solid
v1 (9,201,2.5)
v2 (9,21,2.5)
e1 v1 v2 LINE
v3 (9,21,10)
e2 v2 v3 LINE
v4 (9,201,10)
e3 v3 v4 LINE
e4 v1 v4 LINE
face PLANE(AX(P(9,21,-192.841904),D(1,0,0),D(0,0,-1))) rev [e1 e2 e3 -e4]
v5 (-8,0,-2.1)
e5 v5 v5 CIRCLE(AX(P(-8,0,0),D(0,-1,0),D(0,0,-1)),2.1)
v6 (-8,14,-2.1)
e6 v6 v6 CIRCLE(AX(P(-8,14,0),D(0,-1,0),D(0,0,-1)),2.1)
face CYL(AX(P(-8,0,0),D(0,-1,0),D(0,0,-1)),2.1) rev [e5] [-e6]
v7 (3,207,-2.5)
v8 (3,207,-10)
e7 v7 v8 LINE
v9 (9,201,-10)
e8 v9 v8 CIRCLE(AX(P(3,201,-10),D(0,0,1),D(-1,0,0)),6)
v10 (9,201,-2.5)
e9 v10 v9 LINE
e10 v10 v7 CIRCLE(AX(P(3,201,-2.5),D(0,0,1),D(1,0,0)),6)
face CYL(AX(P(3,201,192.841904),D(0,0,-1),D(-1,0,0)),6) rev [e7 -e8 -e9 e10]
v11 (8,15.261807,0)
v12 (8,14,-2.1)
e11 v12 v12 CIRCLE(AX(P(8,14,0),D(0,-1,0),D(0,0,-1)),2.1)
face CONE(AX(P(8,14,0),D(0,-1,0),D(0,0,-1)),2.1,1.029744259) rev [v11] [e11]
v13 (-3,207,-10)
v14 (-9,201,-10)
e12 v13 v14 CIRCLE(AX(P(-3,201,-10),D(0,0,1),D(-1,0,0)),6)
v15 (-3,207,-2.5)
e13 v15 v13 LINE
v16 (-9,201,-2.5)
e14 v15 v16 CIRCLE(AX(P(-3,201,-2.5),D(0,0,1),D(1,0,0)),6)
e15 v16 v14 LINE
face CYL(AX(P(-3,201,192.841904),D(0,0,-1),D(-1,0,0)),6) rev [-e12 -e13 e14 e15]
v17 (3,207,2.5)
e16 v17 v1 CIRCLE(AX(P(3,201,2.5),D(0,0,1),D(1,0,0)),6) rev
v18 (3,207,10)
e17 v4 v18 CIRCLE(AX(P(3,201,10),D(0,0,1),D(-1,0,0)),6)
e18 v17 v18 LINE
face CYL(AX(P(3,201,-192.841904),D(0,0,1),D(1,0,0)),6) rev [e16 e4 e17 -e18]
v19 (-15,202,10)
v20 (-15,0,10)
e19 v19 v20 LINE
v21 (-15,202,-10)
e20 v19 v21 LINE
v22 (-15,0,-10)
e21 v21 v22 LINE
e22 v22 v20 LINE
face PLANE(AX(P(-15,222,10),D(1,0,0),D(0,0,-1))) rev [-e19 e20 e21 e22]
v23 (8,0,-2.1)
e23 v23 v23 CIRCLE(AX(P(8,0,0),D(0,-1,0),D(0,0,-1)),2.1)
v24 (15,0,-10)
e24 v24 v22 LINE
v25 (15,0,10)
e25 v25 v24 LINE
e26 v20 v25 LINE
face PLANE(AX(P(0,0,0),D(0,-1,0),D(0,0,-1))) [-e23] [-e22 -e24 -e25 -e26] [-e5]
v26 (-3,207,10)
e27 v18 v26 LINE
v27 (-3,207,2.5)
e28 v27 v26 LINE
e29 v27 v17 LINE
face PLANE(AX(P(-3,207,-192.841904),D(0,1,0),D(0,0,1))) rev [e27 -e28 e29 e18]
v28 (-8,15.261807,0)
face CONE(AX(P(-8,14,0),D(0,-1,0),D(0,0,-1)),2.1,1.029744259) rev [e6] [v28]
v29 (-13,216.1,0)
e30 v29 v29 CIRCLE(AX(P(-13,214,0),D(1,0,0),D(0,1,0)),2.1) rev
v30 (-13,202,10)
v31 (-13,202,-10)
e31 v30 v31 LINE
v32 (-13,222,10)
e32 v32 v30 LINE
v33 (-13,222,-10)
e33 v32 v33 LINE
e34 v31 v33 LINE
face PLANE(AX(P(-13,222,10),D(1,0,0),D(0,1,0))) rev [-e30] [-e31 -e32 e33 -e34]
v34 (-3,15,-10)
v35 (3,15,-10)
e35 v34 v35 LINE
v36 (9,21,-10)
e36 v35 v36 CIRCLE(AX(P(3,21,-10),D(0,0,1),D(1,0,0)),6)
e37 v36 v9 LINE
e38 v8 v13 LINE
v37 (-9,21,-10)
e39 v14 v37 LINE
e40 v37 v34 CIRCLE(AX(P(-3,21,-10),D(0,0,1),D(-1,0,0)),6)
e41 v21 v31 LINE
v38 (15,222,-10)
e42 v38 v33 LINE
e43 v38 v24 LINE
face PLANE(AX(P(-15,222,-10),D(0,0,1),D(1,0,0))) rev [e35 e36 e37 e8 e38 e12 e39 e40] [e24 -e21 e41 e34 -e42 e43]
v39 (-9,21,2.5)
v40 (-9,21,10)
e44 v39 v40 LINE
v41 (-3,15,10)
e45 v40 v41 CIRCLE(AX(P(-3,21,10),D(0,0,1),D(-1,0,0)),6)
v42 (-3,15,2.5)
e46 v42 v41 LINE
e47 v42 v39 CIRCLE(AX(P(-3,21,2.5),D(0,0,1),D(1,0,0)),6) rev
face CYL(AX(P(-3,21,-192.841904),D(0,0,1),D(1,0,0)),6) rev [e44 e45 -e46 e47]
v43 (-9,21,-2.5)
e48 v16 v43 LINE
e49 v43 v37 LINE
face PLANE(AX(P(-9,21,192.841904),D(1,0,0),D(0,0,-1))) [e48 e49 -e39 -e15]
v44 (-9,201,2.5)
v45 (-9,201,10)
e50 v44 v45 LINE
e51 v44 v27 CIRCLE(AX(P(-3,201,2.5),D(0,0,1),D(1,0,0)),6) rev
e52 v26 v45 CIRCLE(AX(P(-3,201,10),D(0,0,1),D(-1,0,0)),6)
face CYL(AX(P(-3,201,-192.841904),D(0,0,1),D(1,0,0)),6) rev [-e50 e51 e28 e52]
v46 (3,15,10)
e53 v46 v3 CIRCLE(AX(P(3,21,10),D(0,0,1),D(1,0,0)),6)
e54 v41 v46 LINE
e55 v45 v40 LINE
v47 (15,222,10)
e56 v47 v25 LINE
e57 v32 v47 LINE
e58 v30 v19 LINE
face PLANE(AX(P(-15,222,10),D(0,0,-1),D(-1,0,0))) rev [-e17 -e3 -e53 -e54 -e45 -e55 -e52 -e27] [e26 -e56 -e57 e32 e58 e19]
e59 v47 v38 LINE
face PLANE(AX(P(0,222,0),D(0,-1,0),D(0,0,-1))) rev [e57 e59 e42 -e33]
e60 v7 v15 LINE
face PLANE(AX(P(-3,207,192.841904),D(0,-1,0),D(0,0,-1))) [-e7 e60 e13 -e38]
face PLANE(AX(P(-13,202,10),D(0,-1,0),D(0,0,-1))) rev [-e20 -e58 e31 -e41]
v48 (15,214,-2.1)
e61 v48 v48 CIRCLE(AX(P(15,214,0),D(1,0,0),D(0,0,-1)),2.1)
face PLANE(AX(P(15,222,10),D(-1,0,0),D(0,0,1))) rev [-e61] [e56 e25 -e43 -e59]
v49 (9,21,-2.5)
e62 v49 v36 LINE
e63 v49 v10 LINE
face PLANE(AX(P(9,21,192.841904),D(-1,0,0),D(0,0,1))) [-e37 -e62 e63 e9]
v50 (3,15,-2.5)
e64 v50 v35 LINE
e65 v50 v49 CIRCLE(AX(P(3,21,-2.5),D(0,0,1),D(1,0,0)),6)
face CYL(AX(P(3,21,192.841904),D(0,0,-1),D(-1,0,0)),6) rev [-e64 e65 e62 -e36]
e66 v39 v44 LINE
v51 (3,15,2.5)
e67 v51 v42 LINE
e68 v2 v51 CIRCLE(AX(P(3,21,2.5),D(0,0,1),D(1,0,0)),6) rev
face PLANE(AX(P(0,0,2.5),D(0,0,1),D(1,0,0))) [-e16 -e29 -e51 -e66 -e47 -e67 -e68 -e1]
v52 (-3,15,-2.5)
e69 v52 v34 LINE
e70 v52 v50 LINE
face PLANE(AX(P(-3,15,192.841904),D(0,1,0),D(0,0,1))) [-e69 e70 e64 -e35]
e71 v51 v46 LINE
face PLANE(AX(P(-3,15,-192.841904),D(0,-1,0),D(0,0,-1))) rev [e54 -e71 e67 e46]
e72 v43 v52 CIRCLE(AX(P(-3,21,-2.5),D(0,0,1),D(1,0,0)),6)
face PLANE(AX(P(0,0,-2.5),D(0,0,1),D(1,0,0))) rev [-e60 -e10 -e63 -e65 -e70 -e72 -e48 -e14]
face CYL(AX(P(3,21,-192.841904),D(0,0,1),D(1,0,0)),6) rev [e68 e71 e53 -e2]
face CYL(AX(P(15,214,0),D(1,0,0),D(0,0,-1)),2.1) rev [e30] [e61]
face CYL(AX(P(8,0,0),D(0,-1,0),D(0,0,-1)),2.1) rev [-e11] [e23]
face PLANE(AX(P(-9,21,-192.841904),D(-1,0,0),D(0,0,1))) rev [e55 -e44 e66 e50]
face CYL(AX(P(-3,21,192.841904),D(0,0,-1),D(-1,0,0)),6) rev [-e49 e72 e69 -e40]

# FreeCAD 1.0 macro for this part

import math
import FreeCAD as App
import Part
import Sketcher
Q = App.Units.Quantity

doc = App.newDocument("Part")
body = doc.addObject("PartDesign::Body", "Body")

sketch1 = body.newObject("Sketcher::SketchObject", "Sketch")
sketch1.AttachmentSupport = (doc.getObject("XZ_Plane"), [""])
sketch1.MapMode = "FlatFace"
sketch1.addGeometry([
    Part.LineSegment(App.Vector(-15, -10, 0), App.Vector(-15, 10, 0)),
    Part.LineSegment(App.Vector(-15, 10, 0), App.Vector(15, 10, 0)),
    Part.LineSegment(App.Vector(15, 10, 0), App.Vector(15, -10, 0)),
    Part.LineSegment(App.Vector(15, -10, 0), App.Vector(-15, -10, 0)),
], False)
sketch1.addConstraint([
    Sketcher.Constraint("Coincident", 0, 2, 1, 1),
    Sketcher.Constraint("Coincident", 1, 2, 2, 1),
    Sketcher.Constraint("Coincident", 2, 2, 3, 1),
    Sketcher.Constraint("Coincident", 3, 2, 0, 1),
    Sketcher.Constraint("Vertical", 0),
    Sketcher.Constraint("Horizontal", 1),
    Sketcher.Constraint("Vertical", 2),
    Sketcher.Constraint("Horizontal", 3),
    Sketcher.Constraint("Symmetric", 0, 2, 2, 2, -1, 1),
    Sketcher.Constraint("DistanceX", 1, 1, 1, 2, Q("30 mm")),
    Sketcher.Constraint("DistanceY", 0, 1, 0, 2, Q("20 mm")),
])
pad1 = body.newObject("PartDesign::Pad", "Pad")
pad1.Profile = sketch1
pad1.Length = 222
pad1.Reversed = True

sketch2 = body.newObject("Sketcher::SketchObject", "Sketch001")
sketch2.AttachmentSupport = (doc.getObject("XY_Plane"), [""])
sketch2.MapMode = "FlatFace"
sketch2.AttachmentOffset = App.Placement(App.Vector(0, 0, -10), App.Rotation())
sketch2.addGeometry([
    Part.LineSegment(App.Vector(-3, 15, 0), App.Vector(3, 15, 0)),
    Part.ArcOfCircle(Part.Circle(App.Vector(3, 21, 0), App.Vector(0, 0, 1), 6), math.radians(-90), math.radians(0)),
    Part.LineSegment(App.Vector(9, 21, 0), App.Vector(9, 201, 0)),
    Part.ArcOfCircle(Part.Circle(App.Vector(3, 201, 0), App.Vector(0, 0, 1), 6), math.radians(0), math.radians(90)),
    Part.LineSegment(App.Vector(3, 207, 0), App.Vector(-3, 207, 0)),
    Part.ArcOfCircle(Part.Circle(App.Vector(-3, 201, 0), App.Vector(0, 0, 1), 6), math.radians(90), math.radians(180)),
    Part.LineSegment(App.Vector(-9, 201, 0), App.Vector(-9, 21, 0)),
    Part.ArcOfCircle(Part.Circle(App.Vector(-3, 21, 0), App.Vector(0, 0, 1), 6), math.radians(180), math.radians(270)),
], False)
sketch2.addConstraint([
    Sketcher.Constraint("Tangent", 0, 2, 1, 1),
    Sketcher.Constraint("Tangent", 1, 2, 2, 1),
    Sketcher.Constraint("Tangent", 2, 2, 3, 1),
    Sketcher.Constraint("Tangent", 3, 2, 4, 1),
    Sketcher.Constraint("Tangent", 4, 2, 5, 1),
    Sketcher.Constraint("Tangent", 5, 2, 6, 1),
    Sketcher.Constraint("Tangent", 6, 2, 7, 1),
    Sketcher.Constraint("Tangent", 7, 2, 0, 1),
    Sketcher.Constraint("Horizontal", 0),
    Sketcher.Constraint("Vertical", 2),
    Sketcher.Constraint("Horizontal", 4),
    Sketcher.Constraint("Vertical", 6),
    Sketcher.Constraint("Equal", 1, 3),
    Sketcher.Constraint("Equal", 3, 5),
    Sketcher.Constraint("Equal", 5, 7),
    Sketcher.Constraint("Radius", 1, Q("6 mm")),
    Sketcher.Constraint("DistanceX", 0, 1, 0, 2, Q("6 mm")),
    Sketcher.Constraint("DistanceY", 2, 1, 2, 2, Q("180 mm")),
    Sketcher.Constraint("DistanceX", -1, 1, 1, 3, Q("3 mm")),
    Sketcher.Constraint("DistanceY", -1, 1, 1, 3, Q("21 mm")),
])
pocket1 = body.newObject("PartDesign::Pocket", "Pocket")
pocket1.Profile = sketch2
pocket1.Length = 7.5
pocket1.Reversed = True
doc.recompute()

mirrored = body.newObject("PartDesign::Mirrored", "Mirrored")
mirrored.Originals = [pocket1]
mirrored.MirrorPlane = (doc.getObject("XY_Plane"), [""])
body.Tip = mirrored

sketch3 = body.newObject("Sketcher::SketchObject", "Sketch002")
sketch3.AttachmentSupport = (doc.getObject("XZ_Plane"), [""])
sketch3.MapMode = "FlatFace"
sketch3.addGeometry([
    Part.Circle(App.Vector(-8, 0, 0), App.Vector(0, 0, 1), 2.1),
    Part.Circle(App.Vector(8, 0, 0), App.Vector(0, 0, 1), 2.1),
], False)
sketch3.addConstraint([
    Sketcher.Constraint("Equal", 0, 1),
    Sketcher.Constraint("Symmetric", 0, 3, 1, 3, -1, 1),
    Sketcher.Constraint("PointOnObject", 0, 3, -1),
    Sketcher.Constraint("Diameter", 0, Q("4.2 mm")),
    Sketcher.Constraint("DistanceX", 0, 3, -1, 1, Q("8 mm")),
])
doc.recompute()
hole = body.newObject("PartDesign::Hole", "Hole")
hole.Profile = sketch3
hole.ThreadType = "None"
hole.Diameter = 4.2
hole.DepthType = "Dimension"
hole.Depth = 14
hole.DrillPoint = "Angled"
hole.DrillPointAngle = 118

sketch4 = body.newObject("Sketcher::SketchObject", "Sketch003")
sketch4.AttachmentSupport = (doc.getObject("YZ_Plane"), [""])
sketch4.MapMode = "FlatFace"
sketch4.AttachmentOffset = App.Placement(App.Vector(0, 0, 15), App.Rotation())
sketch4.addGeometry(Part.Circle(App.Vector(214, 0, 0), App.Vector(0, 0, 1), 2.1), False)
sketch4.addConstraint([
    Sketcher.Constraint("PointOnObject", 0, 3, -1),
    Sketcher.Constraint("Diameter", 0, Q("4.2 mm")),
    Sketcher.Constraint("DistanceX", -1, 1, 0, 3, Q("214 mm")),
])
doc.recompute()
hole2 = body.newObject("PartDesign::Hole", "Hole001")
hole2.Profile = sketch4
hole2.ThreadType = "None"
hole2.Diameter = 4.2
hole2.DepthType = "ThroughAll"

sketch5 = body.newObject("Sketcher::SketchObject", "Sketch004")
sketch5.AttachmentSupport = (doc.getObject("XY_Plane"), [""])
sketch5.MapMode = "FlatFace"
sketch5.AttachmentOffset = App.Placement(App.Vector(0, 0, 10), App.Rotation())
sketch5.addGeometry([
    Part.LineSegment(App.Vector(-13, 680, 0), App.Vector(-13, 202, 0)),
    Part.LineSegment(App.Vector(-13, 202, 0), App.Vector(-473, 202, 0)),
    Part.LineSegment(App.Vector(-473, 202, 0), App.Vector(-1132, 836, 0)),
    Part.LineSegment(App.Vector(-1132, 836, 0), App.Vector(-672, 1314, 0)),
    Part.LineSegment(App.Vector(-672, 1314, 0), App.Vector(-13, 680, 0)),
], False)
sketch5.addConstraint([
    Sketcher.Constraint("Coincident", 0, 2, 1, 1),
    Sketcher.Constraint("Coincident", 1, 2, 2, 1),
    Sketcher.Constraint("Coincident", 2, 2, 3, 1),
    Sketcher.Constraint("Coincident", 3, 2, 4, 1),
    Sketcher.Constraint("Coincident", 4, 2, 0, 1),
    Sketcher.Constraint("Vertical", 0),
    Sketcher.Constraint("Horizontal", 1),
    Sketcher.Constraint("Perpendicular", 2, 3),
    Sketcher.Constraint("Perpendicular", 3, 4),
    Sketcher.Constraint("Equal", 2, 4),
    Sketcher.Constraint("DistanceX", 0, 2, -1, 1, Q("13 mm")),
    Sketcher.Constraint("DistanceY", -1, 1, 0, 2, Q("202 mm")),
    Sketcher.Constraint("DistanceX", 1, 2, 1, 1, Q("459.517597 mm")),
    Sketcher.Constraint("DistanceY", 0, 2, 0, 1, Q("477.517597 mm")),
    Sketcher.Constraint("DistanceY", 4, 2, 2, 2, Q("156.963849 mm")),
])
pocket2 = body.newObject("PartDesign::Pocket", "Pocket001")
pocket2.Profile = sketch5
pocket2.Type = "ThroughAll"

doc.recompute()
